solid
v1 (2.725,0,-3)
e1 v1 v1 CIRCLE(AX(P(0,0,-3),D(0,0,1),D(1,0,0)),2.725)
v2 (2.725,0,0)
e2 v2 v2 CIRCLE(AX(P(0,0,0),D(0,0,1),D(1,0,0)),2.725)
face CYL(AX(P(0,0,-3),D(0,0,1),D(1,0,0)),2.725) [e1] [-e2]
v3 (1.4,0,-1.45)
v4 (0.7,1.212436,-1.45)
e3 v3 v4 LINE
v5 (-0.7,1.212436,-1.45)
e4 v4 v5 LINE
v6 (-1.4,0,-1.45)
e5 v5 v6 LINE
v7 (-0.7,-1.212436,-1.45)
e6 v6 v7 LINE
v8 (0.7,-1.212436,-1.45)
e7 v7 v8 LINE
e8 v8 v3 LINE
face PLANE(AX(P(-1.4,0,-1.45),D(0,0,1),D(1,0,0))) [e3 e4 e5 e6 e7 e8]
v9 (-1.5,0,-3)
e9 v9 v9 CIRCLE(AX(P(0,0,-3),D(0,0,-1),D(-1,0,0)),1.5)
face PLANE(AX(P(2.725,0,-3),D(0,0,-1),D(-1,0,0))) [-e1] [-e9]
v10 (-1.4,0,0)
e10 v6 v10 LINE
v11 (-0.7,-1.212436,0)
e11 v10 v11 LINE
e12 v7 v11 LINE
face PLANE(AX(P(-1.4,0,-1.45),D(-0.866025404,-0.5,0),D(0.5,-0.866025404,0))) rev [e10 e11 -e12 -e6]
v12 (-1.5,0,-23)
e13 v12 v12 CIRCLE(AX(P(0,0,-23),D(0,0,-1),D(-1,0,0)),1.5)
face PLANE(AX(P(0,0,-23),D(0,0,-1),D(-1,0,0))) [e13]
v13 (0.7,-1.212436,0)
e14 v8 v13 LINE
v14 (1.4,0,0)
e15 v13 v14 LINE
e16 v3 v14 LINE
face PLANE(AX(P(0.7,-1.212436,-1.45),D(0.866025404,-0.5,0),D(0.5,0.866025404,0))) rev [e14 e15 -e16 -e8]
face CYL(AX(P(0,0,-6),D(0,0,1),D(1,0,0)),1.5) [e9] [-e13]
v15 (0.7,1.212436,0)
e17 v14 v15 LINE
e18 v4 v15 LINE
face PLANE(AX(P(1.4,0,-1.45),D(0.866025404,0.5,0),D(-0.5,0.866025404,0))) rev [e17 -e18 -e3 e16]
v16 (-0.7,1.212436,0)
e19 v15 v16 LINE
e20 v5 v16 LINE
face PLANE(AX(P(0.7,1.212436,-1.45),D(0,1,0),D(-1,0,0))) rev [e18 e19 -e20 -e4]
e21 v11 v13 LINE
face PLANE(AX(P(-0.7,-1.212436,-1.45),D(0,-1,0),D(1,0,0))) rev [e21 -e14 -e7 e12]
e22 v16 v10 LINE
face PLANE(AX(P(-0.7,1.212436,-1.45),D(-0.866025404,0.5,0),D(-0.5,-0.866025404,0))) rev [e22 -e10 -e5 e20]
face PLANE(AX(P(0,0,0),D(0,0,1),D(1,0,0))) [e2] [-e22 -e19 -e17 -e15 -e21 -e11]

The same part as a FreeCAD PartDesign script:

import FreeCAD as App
import Part
import Sketcher
Q = App.Units.Quantity


def add_polygon(sketch, points):
    """Adds a closed chain of lines whose ends are joined by coincident constraints."""
    first, n = sketch.GeometryCount, len(points)
    for a, b in zip(points, points[1:] + points[:1]):
        sketch.addGeometry(Part.LineSegment(App.Vector(*a, 0), App.Vector(*b, 0)), False)
    for i in range(n):
        sketch.addConstraint(Sketcher.Constraint("Coincident", first + i, 2, first + (i + 1) % n, 1))

doc = App.newDocument("Part")
body = doc.addObject("PartDesign::Body", "Body")

# Sketch on XZ plane
sketch1 = body.newObject("Sketcher::SketchObject", "Sketch")
sketch1.AttachmentSupport = (doc.getObject("XZ_Plane"), [""])
sketch1.MapMode = "FlatFace"
add_polygon(sketch1, [(0, -3), (0, 0), (2.725, 0), (2.725, -3)])  # lines 0-3
sketch1.addConstraint([
    Sketcher.Constraint("Vertical", 0),
    Sketcher.Constraint("Horizontal", 1),
    Sketcher.Constraint("Vertical", 2),
    Sketcher.Constraint("Horizontal", 3),
    Sketcher.Constraint("Coincident", 0, 2, -1, 1),
    Sketcher.Constraint("DistanceY", 0, 1, 0, 2, Q("3 mm")),
    Sketcher.Constraint("DistanceX", 1, 1, 1, 2, Q("2.725 mm")),
])
revolution = body.newObject("PartDesign::Revolution", "Revolution")
revolution.Profile = sketch1
revolution.ReferenceAxis = (sketch1, ["V_Axis"])
revolution.Angle = 360

# Sketch on XY plane
sketch2 = body.newObject("Sketcher::SketchObject", "Sketch001")
sketch2.AttachmentSupport = (doc.getObject("XY_Plane"), [""])
sketch2.MapMode = "FlatFace"
sketch2.AttachmentOffset = App.Placement(App.Vector(0, 0, -3), App.Rotation())
sketch2.addGeometry(Part.Circle(App.Vector(0, 0, 0), App.Vector(0, 0, 1), 1.5), False)
sketch2.addConstraint([
    Sketcher.Constraint("Coincident", 0, 3, -1, 1),
    Sketcher.Constraint("Diameter", 0, Q("3 mm")),
])
pad1 = body.newObject("PartDesign::Pad", "Pad")
pad1.Profile = sketch2
pad1.Length = 3
pad1.Reversed = True

# Sketch on XY plane
sketch3 = body.newObject("Sketcher::SketchObject", "Sketch002")
sketch3.AttachmentSupport = (doc.getObject("XY_Plane"), [""])
sketch3.MapMode = "FlatFace"
sketch3.AttachmentOffset = App.Placement(App.Vector(0, 0, -6), App.Rotation())
sketch3.addGeometry(Part.Circle(App.Vector(0, 0, 0), App.Vector(0, 0, 1), 1.5), False)
sketch3.addConstraint([
    Sketcher.Constraint("Coincident", 0, 3, -1, 1),
    Sketcher.Constraint("Diameter", 0, Q("3 mm")),
])
pad2 = body.newObject("PartDesign::Pad", "Pad001")
pad2.Profile = sketch3
pad2.Length = 17
pad2.Reversed = True

# Sketch on XY plane
sketch4 = body.newObject("Sketcher::SketchObject", "Sketch003")
sketch4.AttachmentSupport = (doc.getObject("XY_Plane"), [""])
sketch4.MapMode = "FlatFace"
add_polygon(sketch4, [(-1.4, 0), (-0.7, -1.212436), (0.7, -1.212436), (1.4, 0), (0.7, 1.212436), (-0.7, 1.212436)])  # lines 0-5
sketch4.addConstraint([
    Sketcher.Constraint("Horizontal", 1),
    Sketcher.Constraint("Horizontal", 4),
    Sketcher.Constraint("Symmetric", 0, 2, 3, 2, -1, 1),
    Sketcher.Constraint("Symmetric", 2, 2, 5, 2, -1, 1),
    Sketcher.Constraint("PointOnObject", 2, 2, -1),
    Sketcher.Constraint("Parallel", 2, 5),
    Sketcher.Constraint("Vertical", 1, 2, 3, 2),
    Sketcher.Constraint("Angle", 0, Q("-60 deg")),
    Sketcher.Constraint("DistanceX", 1, 1, 1, 2, Q("1.4 mm")),
    Sketcher.Constraint("Distance", 0, Q("1.4 mm")),
])
pocket1 = body.newObject("PartDesign::Pocket", "Pocket")
pocket1.Profile = sketch4
pocket1.Length = 1.45

doc.recompute()
